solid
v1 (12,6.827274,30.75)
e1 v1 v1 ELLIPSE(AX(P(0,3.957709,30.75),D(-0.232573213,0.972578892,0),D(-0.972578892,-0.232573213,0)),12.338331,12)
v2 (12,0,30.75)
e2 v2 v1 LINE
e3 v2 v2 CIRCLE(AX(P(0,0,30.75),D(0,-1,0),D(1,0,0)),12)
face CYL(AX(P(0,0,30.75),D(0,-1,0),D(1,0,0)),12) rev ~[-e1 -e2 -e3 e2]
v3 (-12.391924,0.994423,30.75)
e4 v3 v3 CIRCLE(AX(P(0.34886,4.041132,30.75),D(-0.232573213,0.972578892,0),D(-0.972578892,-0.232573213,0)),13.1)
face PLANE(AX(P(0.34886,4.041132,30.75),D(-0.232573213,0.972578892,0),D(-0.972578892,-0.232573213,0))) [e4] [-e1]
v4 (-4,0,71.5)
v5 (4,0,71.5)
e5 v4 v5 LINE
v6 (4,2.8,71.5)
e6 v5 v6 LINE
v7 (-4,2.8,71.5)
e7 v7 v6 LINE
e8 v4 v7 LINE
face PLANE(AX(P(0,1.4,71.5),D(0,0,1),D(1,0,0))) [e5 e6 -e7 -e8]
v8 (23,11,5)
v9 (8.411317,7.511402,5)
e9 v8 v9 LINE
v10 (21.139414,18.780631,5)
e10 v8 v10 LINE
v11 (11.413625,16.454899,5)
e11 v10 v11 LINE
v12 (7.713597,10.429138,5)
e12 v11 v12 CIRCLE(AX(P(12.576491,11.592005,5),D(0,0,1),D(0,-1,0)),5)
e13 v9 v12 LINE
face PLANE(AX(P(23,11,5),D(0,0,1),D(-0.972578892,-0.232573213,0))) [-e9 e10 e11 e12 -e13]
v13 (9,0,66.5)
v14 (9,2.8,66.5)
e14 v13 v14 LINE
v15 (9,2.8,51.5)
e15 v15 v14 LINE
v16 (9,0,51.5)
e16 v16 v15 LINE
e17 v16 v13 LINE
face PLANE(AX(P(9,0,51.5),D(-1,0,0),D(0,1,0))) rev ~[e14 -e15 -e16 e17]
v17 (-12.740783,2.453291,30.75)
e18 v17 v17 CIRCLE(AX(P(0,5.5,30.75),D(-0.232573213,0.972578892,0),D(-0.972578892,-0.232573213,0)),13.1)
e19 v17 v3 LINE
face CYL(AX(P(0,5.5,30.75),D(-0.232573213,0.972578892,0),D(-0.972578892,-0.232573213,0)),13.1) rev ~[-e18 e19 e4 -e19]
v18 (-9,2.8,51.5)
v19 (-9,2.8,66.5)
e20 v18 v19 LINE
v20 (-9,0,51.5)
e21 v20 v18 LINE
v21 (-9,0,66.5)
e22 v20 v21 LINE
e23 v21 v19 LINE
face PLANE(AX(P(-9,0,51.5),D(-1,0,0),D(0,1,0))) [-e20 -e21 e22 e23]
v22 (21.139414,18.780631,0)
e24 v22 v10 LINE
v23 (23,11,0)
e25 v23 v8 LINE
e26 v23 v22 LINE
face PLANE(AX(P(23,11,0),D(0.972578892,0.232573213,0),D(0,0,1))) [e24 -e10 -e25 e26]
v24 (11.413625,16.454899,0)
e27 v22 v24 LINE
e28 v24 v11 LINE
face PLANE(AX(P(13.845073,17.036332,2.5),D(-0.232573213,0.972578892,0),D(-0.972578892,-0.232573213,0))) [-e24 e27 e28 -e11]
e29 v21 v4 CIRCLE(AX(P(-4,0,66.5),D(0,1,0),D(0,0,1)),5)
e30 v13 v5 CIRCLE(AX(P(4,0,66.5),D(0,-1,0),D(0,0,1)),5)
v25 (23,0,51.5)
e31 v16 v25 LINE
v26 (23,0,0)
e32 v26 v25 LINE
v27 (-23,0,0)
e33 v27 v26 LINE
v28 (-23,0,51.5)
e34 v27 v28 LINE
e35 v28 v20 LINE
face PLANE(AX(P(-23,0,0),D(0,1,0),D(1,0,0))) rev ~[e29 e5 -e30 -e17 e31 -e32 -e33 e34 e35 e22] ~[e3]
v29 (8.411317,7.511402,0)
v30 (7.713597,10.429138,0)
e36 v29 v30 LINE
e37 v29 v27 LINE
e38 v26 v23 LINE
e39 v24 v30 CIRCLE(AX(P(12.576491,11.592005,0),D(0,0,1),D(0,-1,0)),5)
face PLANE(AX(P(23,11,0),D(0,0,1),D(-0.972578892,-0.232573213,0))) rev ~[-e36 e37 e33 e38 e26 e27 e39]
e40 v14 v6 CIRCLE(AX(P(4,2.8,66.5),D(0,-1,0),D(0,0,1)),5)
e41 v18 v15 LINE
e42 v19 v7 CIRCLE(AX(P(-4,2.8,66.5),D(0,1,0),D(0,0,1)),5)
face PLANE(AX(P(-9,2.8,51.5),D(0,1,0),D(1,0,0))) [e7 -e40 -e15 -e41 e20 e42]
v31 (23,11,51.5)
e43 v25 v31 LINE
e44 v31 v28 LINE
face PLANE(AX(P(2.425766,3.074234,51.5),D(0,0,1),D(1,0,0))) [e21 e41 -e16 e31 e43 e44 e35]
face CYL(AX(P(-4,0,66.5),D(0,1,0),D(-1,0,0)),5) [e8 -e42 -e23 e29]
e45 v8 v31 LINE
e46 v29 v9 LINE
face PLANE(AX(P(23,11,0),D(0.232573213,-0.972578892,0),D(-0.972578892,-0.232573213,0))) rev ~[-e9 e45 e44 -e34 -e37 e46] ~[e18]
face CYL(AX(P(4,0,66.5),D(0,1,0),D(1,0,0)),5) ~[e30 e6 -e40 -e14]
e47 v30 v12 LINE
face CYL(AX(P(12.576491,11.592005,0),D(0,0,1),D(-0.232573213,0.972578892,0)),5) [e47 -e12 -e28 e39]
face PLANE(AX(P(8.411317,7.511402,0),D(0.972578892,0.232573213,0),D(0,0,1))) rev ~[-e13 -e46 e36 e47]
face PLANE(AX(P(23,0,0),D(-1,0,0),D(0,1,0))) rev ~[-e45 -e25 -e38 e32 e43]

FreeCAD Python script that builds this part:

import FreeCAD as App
import Part
import Sketcher

V = App.Vector


def edges_at(feature, points):
    """Names of the edges that pass closest to the given points."""
    edges = feature.Shape.Edges
    near = lambda p: min(range(len(edges)), key=lambda i: edges[i].distToShape(Part.Vertex(*p))[0])
    return sorted({f"Edge{near(p) + 1}" for p in points})


def add_polygon(sketch, points):
    """Adds a closed chain of lines whose ends are joined by coincident constraints."""
    first, n = sketch.GeometryCount, len(points)
    for a, b in zip(points, points[1:] + points[:1]):
        sketch.addGeometry(Part.LineSegment(App.Vector(*a, 0), App.Vector(*b, 0)), False)
    for i in range(n):
        sketch.addConstraint(Sketcher.Constraint("Coincident", first + i, 2, first + (i + 1) % n, 1))

doc = App.newDocument("Part")
body = doc.addObject("PartDesign::Body", "Body")

# Sketch on XY plane
sketch1 = body.newObject("Sketcher::SketchObject", "Sketch")
sketch1.AttachmentSupport = (doc.getObject("XY_Plane"), [""])
sketch1.MapMode = "FlatFace"
add_polygon(sketch1, [(23, 11), (-23, 0), (23, 0)])  # lines 0-2
sketch1.addConstraint(Sketcher.Constraint("Horizontal", 1))
sketch1.addConstraint(Sketcher.Constraint("Vertical", 2))
sketch1.addConstraint(Sketcher.Constraint("Symmetric", 0, 2, 1, 2, -1, 1))
sketch1.addConstraint(Sketcher.Constraint("DistanceX", 1, 1, 1, 2, 46.0))
sketch1.addConstraint(Sketcher.Constraint("DistanceY", 2, 1, 2, 2, 11.0))
pad1 = body.newObject("PartDesign::Pad", "Pad")
pad1.Profile = sketch1
pad1.Length = 51.5

# Sketch on XZ plane
sketch2 = body.newObject("Sketcher::SketchObject", "Sketch001")
sketch2.AttachmentSupport = (doc.getObject("XZ_Plane"), [""])
sketch2.MapMode = "FlatFace"
sketch2.addGeometry(Part.Circle(V(0, 31, 0), V(0, 0, 1), 12), False)
sketch2.addConstraint(Sketcher.Constraint("PointOnObject", 0, 3, -2))
sketch2.addConstraint(Sketcher.Constraint("Diameter", 0, 24.0))
sketch2.addConstraint(Sketcher.Constraint("DistanceY", -1, 1, 0, 3, 30.75))
pocket1 = body.newObject("PartDesign::Pocket", "Pocket")
pocket1.Profile = sketch2
pocket1.Type = "ThroughAll"

# Sketch on an angled plane
sketch3 = body.newObject("Sketcher::SketchObject", "Sketch002")
sketch3.Placement = App.Placement(V(-1.244077, 5.202503, 0), App.Rotation(V(-0.972578892, -0.232573213, 0), V(0, 0, 1.000000001), V(-0.232573213, 0.972578892, 0), "ZXY"))
sketch3.addGeometry(Part.Circle(V(-1, 31, 0), V(0, 0, 1), 13), False)
sketch3.addConstraint(Sketcher.Constraint("Diameter", 0, 26.2))
sketch3.addConstraint(Sketcher.Constraint("DistanceY", -1, 1, 0, 3, 30.75))
sketch3.addConstraint(Sketcher.Constraint("DistanceX", 0, 3, -1, 1, 1.279153))
pocket2 = body.newObject("PartDesign::Pocket", "Pocket001")
pocket2.Profile = sketch3
pocket2.Length = 1.5

# Sketch on an angled plane
sketch4 = body.newObject("Sketcher::SketchObject", "Sketch003")
sketch4.Placement = App.Placement(V(-1.244077, 5.202503, 0), App.Rotation(V(-0.972578892, -0.232573213, 0), V(0, 0, 1.000000001), V(-0.232573213, 0.972578892, 0), "ZXY"))
add_polygon(sketch4, [(-25, 5), (-25, 0), (-10, 0), (-10, 5)])  # lines 0-3
sketch4.addConstraint(Sketcher.Constraint("Vertical", 0))
sketch4.addConstraint(Sketcher.Constraint("Horizontal", 1))
sketch4.addConstraint(Sketcher.Constraint("Vertical", 2))
sketch4.addConstraint(Sketcher.Constraint("Horizontal", 3))
sketch4.addConstraint(Sketcher.Constraint("PointOnObject", 0, 2, -1))
sketch4.addConstraint(Sketcher.Constraint("DistanceX", 1, 1, 1, 2, 15.0))
sketch4.addConstraint(Sketcher.Constraint("DistanceY", 0, 2, 0, 1, 5.0))
sketch4.addConstraint(Sketcher.Constraint("DistanceX", 0, 2, -1, 1, 24.92762))
pad2 = body.newObject("PartDesign::Pad", "Pad001")
pad2.Profile = sketch4
pad2.Length = 8

# Sketch on XY plane
sketch5 = body.newObject("Sketcher::SketchObject", "Sketch004")
sketch5.AttachmentSupport = (doc.getObject("XY_Plane"), [""])
sketch5.MapMode = "FlatFace"
sketch5.AttachmentOffset = App.Placement(V(0, 0, 51.5), App.Rotation())
add_polygon(sketch5, [(-9, 2.8), (-9, 0), (9, 0), (9, 2.8)])  # lines 0-3
sketch5.addConstraint(Sketcher.Constraint("Vertical", 0))
sketch5.addConstraint(Sketcher.Constraint("Horizontal", 1))
sketch5.addConstraint(Sketcher.Constraint("Vertical", 2))
sketch5.addConstraint(Sketcher.Constraint("Horizontal", 3))
sketch5.addConstraint(Sketcher.Constraint("Symmetric", 0, 2, 1, 2, -1, 1))
sketch5.addConstraint(Sketcher.Constraint("DistanceX", 1, 1, 1, 2, 18.0))
sketch5.addConstraint(Sketcher.Constraint("DistanceY", 0, 2, 0, 1, 2.8))
pad3 = body.newObject("PartDesign::Pad", "Pad002")
pad3.Profile = sketch5
pad3.Length = 20
doc.recompute()

fillet = body.newObject("PartDesign::Fillet", "Fillet")
fillet.Base = (pad3, edges_at(pad3, [(6.551, 15.292, 2.5), (-9, 1.4, 71.5), (9, 1.4, 71.5)]))
fillet.Radius = 5

doc.recompute()
